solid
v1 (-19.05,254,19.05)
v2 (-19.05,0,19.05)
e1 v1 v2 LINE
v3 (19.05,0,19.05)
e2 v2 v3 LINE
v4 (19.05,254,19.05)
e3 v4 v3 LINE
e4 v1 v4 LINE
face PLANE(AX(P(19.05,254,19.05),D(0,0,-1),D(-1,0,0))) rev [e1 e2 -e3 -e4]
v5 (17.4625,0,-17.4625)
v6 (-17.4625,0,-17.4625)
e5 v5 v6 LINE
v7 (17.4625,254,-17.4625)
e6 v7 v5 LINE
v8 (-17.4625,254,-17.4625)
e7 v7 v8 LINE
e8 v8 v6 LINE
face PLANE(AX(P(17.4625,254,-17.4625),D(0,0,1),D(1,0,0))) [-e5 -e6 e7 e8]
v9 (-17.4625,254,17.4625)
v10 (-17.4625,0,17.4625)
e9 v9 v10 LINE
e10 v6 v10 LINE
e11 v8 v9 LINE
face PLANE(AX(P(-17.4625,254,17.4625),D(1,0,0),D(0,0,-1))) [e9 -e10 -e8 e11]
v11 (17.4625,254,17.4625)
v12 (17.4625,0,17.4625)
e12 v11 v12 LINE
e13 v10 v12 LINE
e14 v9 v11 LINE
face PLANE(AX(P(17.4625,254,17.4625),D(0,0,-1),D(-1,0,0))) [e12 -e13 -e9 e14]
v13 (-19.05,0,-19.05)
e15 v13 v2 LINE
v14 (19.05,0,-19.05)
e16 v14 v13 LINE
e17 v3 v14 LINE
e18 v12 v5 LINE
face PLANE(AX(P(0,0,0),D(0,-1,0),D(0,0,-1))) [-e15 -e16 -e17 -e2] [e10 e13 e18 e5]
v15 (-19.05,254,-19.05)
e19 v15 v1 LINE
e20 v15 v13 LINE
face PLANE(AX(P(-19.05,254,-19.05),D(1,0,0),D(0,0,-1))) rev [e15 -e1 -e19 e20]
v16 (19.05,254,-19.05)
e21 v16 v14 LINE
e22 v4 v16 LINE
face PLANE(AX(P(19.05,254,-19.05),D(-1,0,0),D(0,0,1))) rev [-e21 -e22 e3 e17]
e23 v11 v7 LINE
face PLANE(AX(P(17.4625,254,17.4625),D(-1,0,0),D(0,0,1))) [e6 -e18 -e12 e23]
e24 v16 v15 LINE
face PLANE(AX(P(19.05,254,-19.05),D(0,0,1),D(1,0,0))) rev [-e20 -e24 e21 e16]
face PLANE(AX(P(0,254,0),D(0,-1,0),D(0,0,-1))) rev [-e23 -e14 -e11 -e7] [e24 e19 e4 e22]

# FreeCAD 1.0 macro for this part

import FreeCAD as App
import Part
import Sketcher

V = App.Vector
Q = App.Units.Quantity

doc = App.newDocument("Part")
body = doc.addObject("PartDesign::Body", "Body")

sketch1 = doc.addObject("Sketcher::SketchObject", "Sketch")
body.addObject(sketch1)
sketch1.AttachmentSupport = (doc.XZ_Plane, [""])
sketch1.MapMode = "FlatFace"
sketch1.addGeometry([
    Part.LineSegment(V(-19, -19, 0), V(-19, 19, 0)),
    Part.LineSegment(V(-19, 19, 0), V(19, 19, 0)),
    Part.LineSegment(V(19, 19, 0), V(19, -19, 0)),
    Part.LineSegment(V(19, -19, 0), V(-19, -19, 0)),
    Part.LineSegment(V(17, 17, 0), V(-17, 17, 0)),
    Part.LineSegment(V(-17, 17, 0), V(-17, -17, 0)),
    Part.LineSegment(V(-17, -17, 0), V(17, -17, 0)),
    Part.LineSegment(V(17, -17, 0), V(17, 17, 0)),
], False)
sketch1.addConstraint([
    Sketcher.Constraint("Coincident", 0, 2, 1, 1),
    Sketcher.Constraint("Coincident", 1, 2, 2, 1),
    Sketcher.Constraint("Coincident", 2, 2, 3, 1),
    Sketcher.Constraint("Coincident", 3, 2, 0, 1),
    Sketcher.Constraint("Coincident", 4, 2, 5, 1),
    Sketcher.Constraint("Coincident", 5, 2, 6, 1),
    Sketcher.Constraint("Coincident", 6, 2, 7, 1),
    Sketcher.Constraint("Coincident", 7, 2, 4, 1),
    Sketcher.Constraint("Vertical", 0),
    Sketcher.Constraint("Horizontal", 1),
    Sketcher.Constraint("Vertical", 2),
    Sketcher.Constraint("Horizontal", 3),
    Sketcher.Constraint("Horizontal", 4),
    Sketcher.Constraint("Vertical", 5),
    Sketcher.Constraint("Horizontal", 6),
    Sketcher.Constraint("Vertical", 7),
    Sketcher.Constraint("Symmetric", 0, 2, 2, 2, -1, 1),
    Sketcher.Constraint("Symmetric", 4, 2, 6, 2, -1, 1),
    Sketcher.Constraint("Equal", 3, 0),
    Sketcher.Constraint("Equal", 6, 5),
    Sketcher.Constraint("DistanceX", 1, 1, 1, 2, Q("1.5 in")),
    Sketcher.Constraint("DistanceX", 4, 2, 4, 1, Q("1.375 in")),
])
pad1 = doc.addObject("PartDesign::Pad", "Pad")
body.addObject(pad1)
pad1.Profile = sketch1
pad1.Length = Q("10 in")
pad1.Reversed = True

doc.recompute()
